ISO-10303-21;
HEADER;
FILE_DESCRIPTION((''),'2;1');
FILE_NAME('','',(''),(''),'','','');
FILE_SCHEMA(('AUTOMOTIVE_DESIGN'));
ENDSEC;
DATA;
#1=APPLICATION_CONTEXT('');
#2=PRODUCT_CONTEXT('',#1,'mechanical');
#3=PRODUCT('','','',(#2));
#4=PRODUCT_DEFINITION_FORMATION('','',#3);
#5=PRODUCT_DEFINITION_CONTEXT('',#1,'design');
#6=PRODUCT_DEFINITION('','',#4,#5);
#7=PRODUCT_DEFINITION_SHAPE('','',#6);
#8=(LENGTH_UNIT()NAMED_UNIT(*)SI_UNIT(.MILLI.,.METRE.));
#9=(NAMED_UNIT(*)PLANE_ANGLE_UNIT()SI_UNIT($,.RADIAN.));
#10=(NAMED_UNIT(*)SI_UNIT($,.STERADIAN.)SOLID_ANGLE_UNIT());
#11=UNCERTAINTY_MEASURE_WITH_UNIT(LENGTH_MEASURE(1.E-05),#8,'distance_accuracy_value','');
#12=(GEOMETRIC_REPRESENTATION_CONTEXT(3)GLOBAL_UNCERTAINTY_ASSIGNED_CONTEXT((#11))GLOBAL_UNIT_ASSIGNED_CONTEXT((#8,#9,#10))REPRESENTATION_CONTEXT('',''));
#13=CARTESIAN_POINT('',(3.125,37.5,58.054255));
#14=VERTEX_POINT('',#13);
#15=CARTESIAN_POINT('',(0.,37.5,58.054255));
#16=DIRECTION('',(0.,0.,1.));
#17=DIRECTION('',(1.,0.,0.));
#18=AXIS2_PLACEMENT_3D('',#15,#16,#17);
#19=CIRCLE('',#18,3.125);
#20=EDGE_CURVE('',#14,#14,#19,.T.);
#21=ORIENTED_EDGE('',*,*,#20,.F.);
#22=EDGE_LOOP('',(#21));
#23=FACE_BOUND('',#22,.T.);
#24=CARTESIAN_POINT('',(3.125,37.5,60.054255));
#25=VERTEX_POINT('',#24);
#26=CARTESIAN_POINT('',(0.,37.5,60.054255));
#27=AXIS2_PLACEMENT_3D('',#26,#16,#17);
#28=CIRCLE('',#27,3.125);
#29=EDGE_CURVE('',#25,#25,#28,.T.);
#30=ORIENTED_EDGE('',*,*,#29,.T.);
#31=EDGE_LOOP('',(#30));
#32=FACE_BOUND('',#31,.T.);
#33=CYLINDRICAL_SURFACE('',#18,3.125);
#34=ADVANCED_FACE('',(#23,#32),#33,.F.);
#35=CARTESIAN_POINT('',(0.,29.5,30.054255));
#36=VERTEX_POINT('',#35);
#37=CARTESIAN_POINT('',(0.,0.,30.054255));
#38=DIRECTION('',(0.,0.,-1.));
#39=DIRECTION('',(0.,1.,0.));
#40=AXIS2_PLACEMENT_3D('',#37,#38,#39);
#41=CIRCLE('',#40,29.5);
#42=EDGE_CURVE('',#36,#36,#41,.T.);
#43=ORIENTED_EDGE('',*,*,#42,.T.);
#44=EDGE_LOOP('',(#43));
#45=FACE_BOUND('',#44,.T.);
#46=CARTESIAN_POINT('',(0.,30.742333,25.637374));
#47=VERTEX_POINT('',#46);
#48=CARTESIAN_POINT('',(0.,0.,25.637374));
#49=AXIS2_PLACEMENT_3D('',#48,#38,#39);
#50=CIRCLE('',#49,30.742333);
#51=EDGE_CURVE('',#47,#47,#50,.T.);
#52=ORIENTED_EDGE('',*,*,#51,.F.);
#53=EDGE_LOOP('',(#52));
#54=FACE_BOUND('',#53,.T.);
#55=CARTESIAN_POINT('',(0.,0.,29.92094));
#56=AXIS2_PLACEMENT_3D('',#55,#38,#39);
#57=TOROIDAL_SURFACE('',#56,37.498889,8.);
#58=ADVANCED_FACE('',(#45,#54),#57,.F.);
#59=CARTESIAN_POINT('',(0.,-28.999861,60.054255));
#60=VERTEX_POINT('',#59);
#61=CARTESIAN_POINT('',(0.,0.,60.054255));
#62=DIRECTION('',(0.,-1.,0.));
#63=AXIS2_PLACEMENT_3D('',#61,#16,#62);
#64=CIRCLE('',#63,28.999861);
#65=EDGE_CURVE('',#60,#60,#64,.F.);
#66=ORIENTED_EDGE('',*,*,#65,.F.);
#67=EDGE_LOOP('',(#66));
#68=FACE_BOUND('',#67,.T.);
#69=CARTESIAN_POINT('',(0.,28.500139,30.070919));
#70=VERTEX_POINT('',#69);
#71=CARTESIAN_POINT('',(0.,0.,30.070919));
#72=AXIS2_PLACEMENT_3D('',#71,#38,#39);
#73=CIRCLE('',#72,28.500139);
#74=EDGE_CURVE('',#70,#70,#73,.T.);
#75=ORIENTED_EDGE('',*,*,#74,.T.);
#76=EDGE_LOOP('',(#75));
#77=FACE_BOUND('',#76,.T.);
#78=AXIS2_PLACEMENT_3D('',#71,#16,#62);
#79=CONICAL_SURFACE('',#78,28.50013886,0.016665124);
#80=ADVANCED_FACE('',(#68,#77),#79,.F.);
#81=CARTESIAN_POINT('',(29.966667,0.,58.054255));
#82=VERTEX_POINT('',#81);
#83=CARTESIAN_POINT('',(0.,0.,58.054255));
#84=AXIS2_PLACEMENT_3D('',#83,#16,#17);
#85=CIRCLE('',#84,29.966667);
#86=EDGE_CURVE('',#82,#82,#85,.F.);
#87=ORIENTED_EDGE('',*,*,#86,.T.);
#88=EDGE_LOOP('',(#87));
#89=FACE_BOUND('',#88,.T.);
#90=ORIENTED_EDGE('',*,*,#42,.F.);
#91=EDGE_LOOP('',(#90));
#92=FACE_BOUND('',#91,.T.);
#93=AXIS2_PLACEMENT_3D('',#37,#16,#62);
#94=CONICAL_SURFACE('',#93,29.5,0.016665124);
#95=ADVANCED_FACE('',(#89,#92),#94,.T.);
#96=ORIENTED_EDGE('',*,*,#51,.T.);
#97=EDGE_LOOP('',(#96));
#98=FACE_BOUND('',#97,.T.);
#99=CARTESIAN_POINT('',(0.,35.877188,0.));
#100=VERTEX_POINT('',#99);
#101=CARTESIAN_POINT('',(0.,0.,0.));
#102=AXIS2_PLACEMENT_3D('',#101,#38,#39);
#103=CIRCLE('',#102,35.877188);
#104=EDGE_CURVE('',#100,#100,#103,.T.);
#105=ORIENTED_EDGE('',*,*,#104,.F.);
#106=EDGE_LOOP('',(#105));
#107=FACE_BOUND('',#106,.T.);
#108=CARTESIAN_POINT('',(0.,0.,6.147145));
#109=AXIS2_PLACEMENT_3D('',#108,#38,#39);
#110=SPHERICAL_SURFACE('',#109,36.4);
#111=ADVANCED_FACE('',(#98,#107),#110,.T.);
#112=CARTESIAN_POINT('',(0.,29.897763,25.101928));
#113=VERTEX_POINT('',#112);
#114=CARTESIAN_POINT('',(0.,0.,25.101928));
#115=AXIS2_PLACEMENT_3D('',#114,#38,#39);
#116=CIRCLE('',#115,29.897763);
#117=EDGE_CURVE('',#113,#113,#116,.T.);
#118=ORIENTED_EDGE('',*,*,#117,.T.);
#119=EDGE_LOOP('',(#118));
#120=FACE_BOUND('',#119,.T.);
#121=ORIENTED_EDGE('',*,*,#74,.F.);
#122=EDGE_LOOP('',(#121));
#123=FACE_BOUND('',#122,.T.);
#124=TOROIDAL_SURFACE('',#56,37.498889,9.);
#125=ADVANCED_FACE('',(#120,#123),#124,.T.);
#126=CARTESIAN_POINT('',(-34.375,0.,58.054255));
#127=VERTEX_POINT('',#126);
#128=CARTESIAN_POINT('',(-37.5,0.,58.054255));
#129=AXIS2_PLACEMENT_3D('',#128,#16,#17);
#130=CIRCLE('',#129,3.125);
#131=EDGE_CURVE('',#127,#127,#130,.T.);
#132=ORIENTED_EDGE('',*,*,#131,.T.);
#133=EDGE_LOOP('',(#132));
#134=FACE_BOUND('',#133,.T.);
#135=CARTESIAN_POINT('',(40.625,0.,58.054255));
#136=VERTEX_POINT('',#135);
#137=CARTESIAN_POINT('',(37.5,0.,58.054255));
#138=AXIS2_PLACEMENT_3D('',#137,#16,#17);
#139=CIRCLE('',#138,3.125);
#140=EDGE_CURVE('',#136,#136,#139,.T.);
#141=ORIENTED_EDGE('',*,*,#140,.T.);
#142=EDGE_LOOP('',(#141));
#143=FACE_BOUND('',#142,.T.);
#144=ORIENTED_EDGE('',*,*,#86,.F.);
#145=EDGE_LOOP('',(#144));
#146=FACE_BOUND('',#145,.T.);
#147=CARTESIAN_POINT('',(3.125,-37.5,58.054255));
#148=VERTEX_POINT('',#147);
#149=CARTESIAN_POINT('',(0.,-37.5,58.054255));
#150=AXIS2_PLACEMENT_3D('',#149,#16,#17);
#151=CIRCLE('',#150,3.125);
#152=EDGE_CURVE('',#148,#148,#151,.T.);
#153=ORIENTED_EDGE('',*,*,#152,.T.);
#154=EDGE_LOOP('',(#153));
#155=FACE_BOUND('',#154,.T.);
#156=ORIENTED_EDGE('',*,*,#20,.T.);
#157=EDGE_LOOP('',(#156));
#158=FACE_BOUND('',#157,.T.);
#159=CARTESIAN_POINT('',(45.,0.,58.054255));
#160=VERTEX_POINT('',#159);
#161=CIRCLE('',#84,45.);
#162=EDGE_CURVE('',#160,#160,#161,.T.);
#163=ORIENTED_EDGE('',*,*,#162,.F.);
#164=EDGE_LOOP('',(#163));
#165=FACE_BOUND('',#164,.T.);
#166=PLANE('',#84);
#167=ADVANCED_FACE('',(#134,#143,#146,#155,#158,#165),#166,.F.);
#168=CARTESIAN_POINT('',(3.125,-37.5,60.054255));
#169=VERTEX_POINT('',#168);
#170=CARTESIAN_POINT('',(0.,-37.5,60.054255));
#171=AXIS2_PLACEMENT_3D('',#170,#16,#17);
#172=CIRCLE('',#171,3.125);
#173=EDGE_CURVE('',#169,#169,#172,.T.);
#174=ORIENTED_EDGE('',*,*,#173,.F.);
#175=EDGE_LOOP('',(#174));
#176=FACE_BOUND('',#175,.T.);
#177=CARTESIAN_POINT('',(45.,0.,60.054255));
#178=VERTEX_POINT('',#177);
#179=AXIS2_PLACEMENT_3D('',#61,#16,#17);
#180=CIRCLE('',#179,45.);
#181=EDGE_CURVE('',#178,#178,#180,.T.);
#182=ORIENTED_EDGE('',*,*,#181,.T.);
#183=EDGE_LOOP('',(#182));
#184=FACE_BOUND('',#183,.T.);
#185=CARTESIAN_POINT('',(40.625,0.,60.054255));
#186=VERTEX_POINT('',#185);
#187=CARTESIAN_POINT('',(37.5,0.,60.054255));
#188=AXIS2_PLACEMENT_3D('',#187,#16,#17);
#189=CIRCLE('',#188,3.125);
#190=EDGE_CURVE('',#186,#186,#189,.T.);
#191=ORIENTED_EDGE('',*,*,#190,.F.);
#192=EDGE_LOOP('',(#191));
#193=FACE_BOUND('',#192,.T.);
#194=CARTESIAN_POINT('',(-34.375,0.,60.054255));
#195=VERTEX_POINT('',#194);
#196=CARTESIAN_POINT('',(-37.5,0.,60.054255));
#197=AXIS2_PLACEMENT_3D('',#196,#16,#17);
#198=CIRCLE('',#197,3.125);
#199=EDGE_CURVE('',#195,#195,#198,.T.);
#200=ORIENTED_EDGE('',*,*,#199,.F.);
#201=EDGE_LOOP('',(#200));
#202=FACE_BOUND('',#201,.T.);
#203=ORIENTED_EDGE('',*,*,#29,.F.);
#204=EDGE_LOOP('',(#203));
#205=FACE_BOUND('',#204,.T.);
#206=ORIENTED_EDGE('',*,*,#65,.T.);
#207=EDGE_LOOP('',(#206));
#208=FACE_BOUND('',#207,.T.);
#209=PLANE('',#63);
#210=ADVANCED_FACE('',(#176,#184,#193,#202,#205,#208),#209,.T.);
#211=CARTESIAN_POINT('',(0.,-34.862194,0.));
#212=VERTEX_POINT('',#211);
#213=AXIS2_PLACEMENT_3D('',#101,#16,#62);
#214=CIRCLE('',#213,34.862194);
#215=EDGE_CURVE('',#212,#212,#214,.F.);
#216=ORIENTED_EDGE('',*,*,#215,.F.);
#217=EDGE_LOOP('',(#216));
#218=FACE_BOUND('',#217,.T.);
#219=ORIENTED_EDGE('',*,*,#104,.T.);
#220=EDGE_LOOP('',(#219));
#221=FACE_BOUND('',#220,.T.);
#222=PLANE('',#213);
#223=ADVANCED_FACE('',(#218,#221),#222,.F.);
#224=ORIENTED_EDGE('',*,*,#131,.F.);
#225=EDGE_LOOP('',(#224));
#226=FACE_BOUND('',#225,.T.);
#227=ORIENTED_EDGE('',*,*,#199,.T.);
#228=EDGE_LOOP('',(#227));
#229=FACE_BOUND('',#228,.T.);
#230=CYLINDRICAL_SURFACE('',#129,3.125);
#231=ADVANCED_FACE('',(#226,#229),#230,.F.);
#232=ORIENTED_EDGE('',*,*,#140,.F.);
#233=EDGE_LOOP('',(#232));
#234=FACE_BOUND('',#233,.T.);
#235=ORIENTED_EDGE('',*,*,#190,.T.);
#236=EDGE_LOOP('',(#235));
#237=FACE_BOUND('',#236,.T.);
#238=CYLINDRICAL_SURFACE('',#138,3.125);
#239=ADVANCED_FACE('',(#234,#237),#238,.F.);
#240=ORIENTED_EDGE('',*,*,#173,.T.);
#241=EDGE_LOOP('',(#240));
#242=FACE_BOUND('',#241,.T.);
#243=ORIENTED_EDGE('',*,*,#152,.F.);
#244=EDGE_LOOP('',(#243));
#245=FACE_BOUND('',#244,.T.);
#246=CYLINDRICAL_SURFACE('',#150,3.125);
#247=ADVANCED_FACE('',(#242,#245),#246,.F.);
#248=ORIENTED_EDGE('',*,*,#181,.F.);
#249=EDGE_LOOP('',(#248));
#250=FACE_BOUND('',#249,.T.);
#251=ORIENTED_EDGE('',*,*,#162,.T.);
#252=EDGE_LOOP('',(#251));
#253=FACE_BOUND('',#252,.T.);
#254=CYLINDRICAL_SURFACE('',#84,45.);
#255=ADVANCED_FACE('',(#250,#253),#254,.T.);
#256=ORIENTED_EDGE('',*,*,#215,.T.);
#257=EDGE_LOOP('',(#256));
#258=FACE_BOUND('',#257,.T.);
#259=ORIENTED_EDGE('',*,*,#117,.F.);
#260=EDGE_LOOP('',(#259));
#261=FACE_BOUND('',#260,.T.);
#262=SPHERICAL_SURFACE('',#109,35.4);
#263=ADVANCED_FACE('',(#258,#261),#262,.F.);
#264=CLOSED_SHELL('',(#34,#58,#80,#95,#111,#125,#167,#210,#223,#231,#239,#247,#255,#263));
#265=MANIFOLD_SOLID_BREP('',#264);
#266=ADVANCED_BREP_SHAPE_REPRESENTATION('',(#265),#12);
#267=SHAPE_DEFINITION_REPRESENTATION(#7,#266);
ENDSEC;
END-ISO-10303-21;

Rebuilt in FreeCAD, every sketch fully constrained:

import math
import FreeCAD as App
import Part
import Sketcher

V = App.Vector


def faces_at(feature, points):
    """Names of the faces that lie closest to the given points."""
    faces = feature.Shape.Faces
    near = lambda p: min(range(len(faces)), key=lambda i: faces[i].distToShape(Part.Vertex(*p))[0])
    return sorted({f"Face{near(p) + 1}" for p in points})

doc = App.newDocument("Part")
body = doc.addObject("PartDesign::Body", "Body")

# Sketch on YZ plane
sketch1 = doc.addObject("Sketcher::SketchObject", "Sketch")
body.addObject(sketch1)
sketch1.AttachmentSupport = (doc.YZ_Plane, [""])
sketch1.MapMode = "FlatFace"
sketch1.addGeometry([
    Part.LineSegment(V(0, 60.054255, 0), V(0, 0, 0)),  # 0
    Part.LineSegment(V(0, 0, 0), V(35.877188, 0, 0)),  # 1
    Part.ArcOfCircle(Part.Circle(V(0, 6.147145, 0), V(0, 0, 1), 36.4), math.radians(-9.722568), math.radians(22.441815)),  # 2
    Part.ArcOfCircle(Part.Circle(V(0, 6.147146, 0), V(0, 0, 1), 36.4), math.radians(22.441815), math.radians(32.374151)),  # 3
    Part.ArcOfCircle(Part.Circle(V(37.498889, 29.92094, 0), V(0, 0, 1), 8), math.radians(179.045159), math.radians(212.374151)),  # 4
    Part.LineSegment(V(29.5, 30.054255, 0), V(30, 60.054255, 0)),  # 5
    Part.LineSegment(V(30, 60.054255, 0), V(0, 60.054255, 0)),  # 6
], False)
sketch1.addConstraint([
    Sketcher.Constraint("Coincident", 0, 2, 1, 1),
    Sketcher.Constraint("Coincident", 1, 2, 2, 1),
    Sketcher.Constraint("Tangent", 2, 2, 3, 1),
    Sketcher.Constraint("Tangent", 3, 2, 4, 2),
    Sketcher.Constraint("Tangent", 4, 1, 5, 1),
    Sketcher.Constraint("Coincident", 5, 2, 6, 1),
    Sketcher.Constraint("Coincident", 6, 2, 0, 1),
    Sketcher.Constraint("Vertical", 0),
    Sketcher.Constraint("Horizontal", 1),
    Sketcher.Constraint("Horizontal", 6),
    Sketcher.Constraint("Coincident", 0, 2, -1, 1),
    Sketcher.Constraint("Equal", 2, 3),
    Sketcher.Constraint("PointOnObject", 2, 3, -2),
    Sketcher.Constraint("Radius", 4, 8.0),
    Sketcher.Constraint("Radius", 2, 36.4),
    Sketcher.Constraint("DistanceX", 6, 2, 6, 1, 30.0),
    Sketcher.Constraint("DistanceY", 4, 1, 5, 2, 30.0),
    Sketcher.Constraint("DistanceX", -1, 1, 4, 1, 29.5),
    Sketcher.Constraint("DistanceX", 1, 2, 4, 3, 1.621701),
    Sketcher.Constraint("DistanceY", 3, 3, 2, 2, 13.895518),
])
revolution = doc.addObject("PartDesign::Revolution", "Revolution")
body.addObject(revolution)
revolution.Profile = sketch1
revolution.ReferenceAxis = (sketch1, ["V_Axis"])
revolution.Angle = 360
doc.recompute()

thickness = doc.addObject("PartDesign::Thickness", "Thickness")
body.addObject(thickness)
thickness.Base = (revolution, faces_at(revolution, [(0, 0, 0), (0, 0, 60.054)]))
thickness.Value = 1
thickness.Reversed = True
thickness.Join = "Intersection"

# Sketch on XY plane
sketch2 = doc.addObject("Sketcher::SketchObject", "Sketch001")
body.addObject(sketch2)
sketch2.AttachmentSupport = (doc.XY_Plane, [""])
sketch2.MapMode = "FlatFace"
sketch2.AttachmentOffset = App.Placement(V(0, 0, 60.054255), App.Rotation())
sketch2.addGeometry([
    Part.Circle(V(0, 0, 0), V(0, 0, 1), 45),  # 0
    Part.Circle(V(0, -37.5, 0), V(0, 0, 1), 3.125),  # 1
    Part.Circle(V(-37.5, 0, 0), V(0, 0, 1), 3.125),  # 2
    Part.Circle(V(0, 0, 0), V(0, 0, 1), 28.999861),  # 3
    Part.Circle(V(37.5, 0, 0), V(0, 0, 1), 3.125),  # 4
    Part.Circle(V(0, 37.5, 0), V(0, 0, 1), 3.125),  # 5
], False)
sketch2.addConstraint([
    Sketcher.Constraint("Coincident", 0, 3, -1, 1),
    Sketcher.Constraint("Coincident", 3, 3, -1, 1),
    Sketcher.Constraint("Equal", 1, 2),
    Sketcher.Constraint("Equal", 2, 4),
    Sketcher.Constraint("Equal", 4, 5),
    Sketcher.Constraint("Symmetric", 2, 3, 4, 3, -1, 1),
    Sketcher.Constraint("Symmetric", 1, 3, 5, 3, -1, 1),
    Sketcher.Constraint("PointOnObject", 1, 3, -2),
    Sketcher.Constraint("PointOnObject", 2, 3, -1),
    Sketcher.Constraint("Diameter", 0, 90.0),
    Sketcher.Constraint("Diameter", 1, 6.25),
    Sketcher.Constraint("DistanceX", 2, 3, 4, 3, 75.0),
    Sketcher.Constraint("DistanceY", 1, 3, 5, 3, 75.0),
    Sketcher.Constraint("Diameter", 3, 57.999722),
])
pad1 = doc.addObject("PartDesign::Pad", "Pad")
body.addObject(pad1)
pad1.Profile = sketch2
pad1.Length = 2
pad1.Reversed = True

doc.recompute()
